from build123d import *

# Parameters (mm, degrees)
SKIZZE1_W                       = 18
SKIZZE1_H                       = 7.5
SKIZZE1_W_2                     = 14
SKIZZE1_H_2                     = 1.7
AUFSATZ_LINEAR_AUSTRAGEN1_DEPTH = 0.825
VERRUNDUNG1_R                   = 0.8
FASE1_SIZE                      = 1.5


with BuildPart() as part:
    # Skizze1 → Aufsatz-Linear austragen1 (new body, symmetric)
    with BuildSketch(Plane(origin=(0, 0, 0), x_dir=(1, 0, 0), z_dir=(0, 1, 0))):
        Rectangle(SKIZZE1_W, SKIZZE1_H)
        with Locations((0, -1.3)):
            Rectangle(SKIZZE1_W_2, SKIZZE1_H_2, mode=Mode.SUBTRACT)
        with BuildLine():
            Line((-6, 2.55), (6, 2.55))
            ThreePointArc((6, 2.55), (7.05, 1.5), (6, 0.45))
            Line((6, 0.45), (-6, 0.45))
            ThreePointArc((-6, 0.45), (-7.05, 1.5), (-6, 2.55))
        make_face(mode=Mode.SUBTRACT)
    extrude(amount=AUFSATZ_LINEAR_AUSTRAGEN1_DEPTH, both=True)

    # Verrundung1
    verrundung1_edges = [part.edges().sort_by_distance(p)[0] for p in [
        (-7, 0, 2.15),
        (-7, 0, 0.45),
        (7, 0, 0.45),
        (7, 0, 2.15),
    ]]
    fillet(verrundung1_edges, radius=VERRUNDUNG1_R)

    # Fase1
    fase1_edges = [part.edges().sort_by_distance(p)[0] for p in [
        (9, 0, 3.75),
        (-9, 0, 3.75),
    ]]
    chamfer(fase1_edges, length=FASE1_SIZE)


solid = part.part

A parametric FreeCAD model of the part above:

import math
import FreeCAD as App
import Part
import Sketcher


def edges_at(feature, points):
    """Names of the edges that pass closest to the given points."""
    edges = feature.Shape.Edges
    near = lambda p: min(range(len(edges)), key=lambda i: edges[i].distToShape(Part.Vertex(*p))[0])
    return sorted({f"Edge{near(p) + 1}" for p in points})


def add_polygon(sketch, points):
    """Adds a closed chain of lines whose ends are joined by coincident constraints."""
    first, n = sketch.GeometryCount, len(points)
    for a, b in zip(points, points[1:] + points[:1]):
        sketch.addGeometry(Part.LineSegment(App.Vector(*a, 0), App.Vector(*b, 0)), False)
    for i in range(n):
        sketch.addConstraint(Sketcher.Constraint("Coincident", first + i, 2, first + (i + 1) % n, 1))

doc = App.newDocument("Part")
body = doc.addObject("PartDesign::Body", "Body")

# Sketch on XZ plane
sketch1 = doc.addObject("Sketcher::SketchObject", "Sketch")
body.addObject(sketch1)
sketch1.AttachmentSupport = (doc.XZ_Plane, [""])
sketch1.MapMode = "FlatFace"
add_polygon(sketch1, [(-9, -3.8), (-9, 3.8), (9, 3.8), (9, -3.8)])  # lines 0-3
add_polygon(sketch1, [(7, 2.1), (-7, 2.1), (-7, 0.5), (7, 0.5)])  # lines 4-7
sketch1.addGeometry(Part.ArcOfCircle(Part.Circle(App.Vector(-6, -1.5, 0), App.Vector(0, 0, 1), 1.1), math.radians(90), math.radians(270)), False)  # 8
sketch1.addGeometry(Part.LineSegment(App.Vector(-6, -2.5, 0), App.Vector(6, -2.5, 0)), False)  # 9
sketch1.addGeometry(Part.ArcOfCircle(Part.Circle(App.Vector(6, -1.5, 0), App.Vector(0, 0, 1), 1.1), math.radians(-90), math.radians(90)), False)  # 10
sketch1.addGeometry(Part.LineSegment(App.Vector(6, -0.5, 0), App.Vector(-6, -0.5, 0)), False)  # 11
sketch1.addConstraint([
    Sketcher.Constraint("Tangent", 8, 2, 9, 1),
    Sketcher.Constraint("Tangent", 9, 2, 10, 1),
    Sketcher.Constraint("Tangent", 10, 2, 11, 1),
    Sketcher.Constraint("Tangent", 11, 2, 8, 1),
    Sketcher.Constraint("Vertical", 0),
    Sketcher.Constraint("Horizontal", 1),
    Sketcher.Constraint("Vertical", 2),
    Sketcher.Constraint("Horizontal", 3),
    Sketcher.Constraint("Horizontal", 4),
    Sketcher.Constraint("Vertical", 5),
    Sketcher.Constraint("Horizontal", 6),
    Sketcher.Constraint("Vertical", 7),
    Sketcher.Constraint("Horizontal", 9),
    Sketcher.Constraint("Horizontal", 11),
    Sketcher.Constraint("Symmetric", 0, 2, 2, 2, -1, 1),
    Sketcher.Constraint("DistanceX", 1, 1, 1, 2, 18.0),
    Sketcher.Constraint("DistanceX", 4, 2, 4, 1, 14.0),
    Sketcher.Constraint("DistanceX", 9, 1, 9, 2, 12.0),
    Sketcher.Constraint("Radius", 8, 1.05),
    Sketcher.Constraint("DistanceY", 0, 1, 0, 2, 7.5),
    Sketcher.Constraint("DistanceY", 5, 2, 5, 1, 1.7),
    Sketcher.Constraint("DistanceX", 8, 3, -1, 1, 6.0),
    Sketcher.Constraint("DistanceX", 4, 2, -1, 1, 7.0),
    Sketcher.Constraint("DistanceY", 8, 2, 5, 2, 3.0),
    Sketcher.Constraint("DistanceY", 8, 3, -1, 1, 1.5),
])
pad1 = doc.addObject("PartDesign::Pad", "Pad")
body.addObject(pad1)
pad1.Profile = sketch1
pad1.Length = 1.65
pad1.Midplane = True
doc.recompute()

fillet = doc.addObject("PartDesign::Fillet", "Fillet")
body.addObject(fillet)
fillet.Base = (pad1, edges_at(pad1, [
    (-7, 0, 2.15),
    (-7, 0, 0.45),
    (7, 0, 0.45),
    (7, 0, 2.15),
]))
fillet.Radius = 0.8
doc.recompute()

chamfer = doc.addObject("PartDesign::Chamfer", "Chamfer")
body.addObject(chamfer)
chamfer.Base = (fillet, edges_at(fillet, [(9, 0, 3.75), (-9, 0, 3.75)]))
chamfer.Size = 1.5

doc.recompute()
